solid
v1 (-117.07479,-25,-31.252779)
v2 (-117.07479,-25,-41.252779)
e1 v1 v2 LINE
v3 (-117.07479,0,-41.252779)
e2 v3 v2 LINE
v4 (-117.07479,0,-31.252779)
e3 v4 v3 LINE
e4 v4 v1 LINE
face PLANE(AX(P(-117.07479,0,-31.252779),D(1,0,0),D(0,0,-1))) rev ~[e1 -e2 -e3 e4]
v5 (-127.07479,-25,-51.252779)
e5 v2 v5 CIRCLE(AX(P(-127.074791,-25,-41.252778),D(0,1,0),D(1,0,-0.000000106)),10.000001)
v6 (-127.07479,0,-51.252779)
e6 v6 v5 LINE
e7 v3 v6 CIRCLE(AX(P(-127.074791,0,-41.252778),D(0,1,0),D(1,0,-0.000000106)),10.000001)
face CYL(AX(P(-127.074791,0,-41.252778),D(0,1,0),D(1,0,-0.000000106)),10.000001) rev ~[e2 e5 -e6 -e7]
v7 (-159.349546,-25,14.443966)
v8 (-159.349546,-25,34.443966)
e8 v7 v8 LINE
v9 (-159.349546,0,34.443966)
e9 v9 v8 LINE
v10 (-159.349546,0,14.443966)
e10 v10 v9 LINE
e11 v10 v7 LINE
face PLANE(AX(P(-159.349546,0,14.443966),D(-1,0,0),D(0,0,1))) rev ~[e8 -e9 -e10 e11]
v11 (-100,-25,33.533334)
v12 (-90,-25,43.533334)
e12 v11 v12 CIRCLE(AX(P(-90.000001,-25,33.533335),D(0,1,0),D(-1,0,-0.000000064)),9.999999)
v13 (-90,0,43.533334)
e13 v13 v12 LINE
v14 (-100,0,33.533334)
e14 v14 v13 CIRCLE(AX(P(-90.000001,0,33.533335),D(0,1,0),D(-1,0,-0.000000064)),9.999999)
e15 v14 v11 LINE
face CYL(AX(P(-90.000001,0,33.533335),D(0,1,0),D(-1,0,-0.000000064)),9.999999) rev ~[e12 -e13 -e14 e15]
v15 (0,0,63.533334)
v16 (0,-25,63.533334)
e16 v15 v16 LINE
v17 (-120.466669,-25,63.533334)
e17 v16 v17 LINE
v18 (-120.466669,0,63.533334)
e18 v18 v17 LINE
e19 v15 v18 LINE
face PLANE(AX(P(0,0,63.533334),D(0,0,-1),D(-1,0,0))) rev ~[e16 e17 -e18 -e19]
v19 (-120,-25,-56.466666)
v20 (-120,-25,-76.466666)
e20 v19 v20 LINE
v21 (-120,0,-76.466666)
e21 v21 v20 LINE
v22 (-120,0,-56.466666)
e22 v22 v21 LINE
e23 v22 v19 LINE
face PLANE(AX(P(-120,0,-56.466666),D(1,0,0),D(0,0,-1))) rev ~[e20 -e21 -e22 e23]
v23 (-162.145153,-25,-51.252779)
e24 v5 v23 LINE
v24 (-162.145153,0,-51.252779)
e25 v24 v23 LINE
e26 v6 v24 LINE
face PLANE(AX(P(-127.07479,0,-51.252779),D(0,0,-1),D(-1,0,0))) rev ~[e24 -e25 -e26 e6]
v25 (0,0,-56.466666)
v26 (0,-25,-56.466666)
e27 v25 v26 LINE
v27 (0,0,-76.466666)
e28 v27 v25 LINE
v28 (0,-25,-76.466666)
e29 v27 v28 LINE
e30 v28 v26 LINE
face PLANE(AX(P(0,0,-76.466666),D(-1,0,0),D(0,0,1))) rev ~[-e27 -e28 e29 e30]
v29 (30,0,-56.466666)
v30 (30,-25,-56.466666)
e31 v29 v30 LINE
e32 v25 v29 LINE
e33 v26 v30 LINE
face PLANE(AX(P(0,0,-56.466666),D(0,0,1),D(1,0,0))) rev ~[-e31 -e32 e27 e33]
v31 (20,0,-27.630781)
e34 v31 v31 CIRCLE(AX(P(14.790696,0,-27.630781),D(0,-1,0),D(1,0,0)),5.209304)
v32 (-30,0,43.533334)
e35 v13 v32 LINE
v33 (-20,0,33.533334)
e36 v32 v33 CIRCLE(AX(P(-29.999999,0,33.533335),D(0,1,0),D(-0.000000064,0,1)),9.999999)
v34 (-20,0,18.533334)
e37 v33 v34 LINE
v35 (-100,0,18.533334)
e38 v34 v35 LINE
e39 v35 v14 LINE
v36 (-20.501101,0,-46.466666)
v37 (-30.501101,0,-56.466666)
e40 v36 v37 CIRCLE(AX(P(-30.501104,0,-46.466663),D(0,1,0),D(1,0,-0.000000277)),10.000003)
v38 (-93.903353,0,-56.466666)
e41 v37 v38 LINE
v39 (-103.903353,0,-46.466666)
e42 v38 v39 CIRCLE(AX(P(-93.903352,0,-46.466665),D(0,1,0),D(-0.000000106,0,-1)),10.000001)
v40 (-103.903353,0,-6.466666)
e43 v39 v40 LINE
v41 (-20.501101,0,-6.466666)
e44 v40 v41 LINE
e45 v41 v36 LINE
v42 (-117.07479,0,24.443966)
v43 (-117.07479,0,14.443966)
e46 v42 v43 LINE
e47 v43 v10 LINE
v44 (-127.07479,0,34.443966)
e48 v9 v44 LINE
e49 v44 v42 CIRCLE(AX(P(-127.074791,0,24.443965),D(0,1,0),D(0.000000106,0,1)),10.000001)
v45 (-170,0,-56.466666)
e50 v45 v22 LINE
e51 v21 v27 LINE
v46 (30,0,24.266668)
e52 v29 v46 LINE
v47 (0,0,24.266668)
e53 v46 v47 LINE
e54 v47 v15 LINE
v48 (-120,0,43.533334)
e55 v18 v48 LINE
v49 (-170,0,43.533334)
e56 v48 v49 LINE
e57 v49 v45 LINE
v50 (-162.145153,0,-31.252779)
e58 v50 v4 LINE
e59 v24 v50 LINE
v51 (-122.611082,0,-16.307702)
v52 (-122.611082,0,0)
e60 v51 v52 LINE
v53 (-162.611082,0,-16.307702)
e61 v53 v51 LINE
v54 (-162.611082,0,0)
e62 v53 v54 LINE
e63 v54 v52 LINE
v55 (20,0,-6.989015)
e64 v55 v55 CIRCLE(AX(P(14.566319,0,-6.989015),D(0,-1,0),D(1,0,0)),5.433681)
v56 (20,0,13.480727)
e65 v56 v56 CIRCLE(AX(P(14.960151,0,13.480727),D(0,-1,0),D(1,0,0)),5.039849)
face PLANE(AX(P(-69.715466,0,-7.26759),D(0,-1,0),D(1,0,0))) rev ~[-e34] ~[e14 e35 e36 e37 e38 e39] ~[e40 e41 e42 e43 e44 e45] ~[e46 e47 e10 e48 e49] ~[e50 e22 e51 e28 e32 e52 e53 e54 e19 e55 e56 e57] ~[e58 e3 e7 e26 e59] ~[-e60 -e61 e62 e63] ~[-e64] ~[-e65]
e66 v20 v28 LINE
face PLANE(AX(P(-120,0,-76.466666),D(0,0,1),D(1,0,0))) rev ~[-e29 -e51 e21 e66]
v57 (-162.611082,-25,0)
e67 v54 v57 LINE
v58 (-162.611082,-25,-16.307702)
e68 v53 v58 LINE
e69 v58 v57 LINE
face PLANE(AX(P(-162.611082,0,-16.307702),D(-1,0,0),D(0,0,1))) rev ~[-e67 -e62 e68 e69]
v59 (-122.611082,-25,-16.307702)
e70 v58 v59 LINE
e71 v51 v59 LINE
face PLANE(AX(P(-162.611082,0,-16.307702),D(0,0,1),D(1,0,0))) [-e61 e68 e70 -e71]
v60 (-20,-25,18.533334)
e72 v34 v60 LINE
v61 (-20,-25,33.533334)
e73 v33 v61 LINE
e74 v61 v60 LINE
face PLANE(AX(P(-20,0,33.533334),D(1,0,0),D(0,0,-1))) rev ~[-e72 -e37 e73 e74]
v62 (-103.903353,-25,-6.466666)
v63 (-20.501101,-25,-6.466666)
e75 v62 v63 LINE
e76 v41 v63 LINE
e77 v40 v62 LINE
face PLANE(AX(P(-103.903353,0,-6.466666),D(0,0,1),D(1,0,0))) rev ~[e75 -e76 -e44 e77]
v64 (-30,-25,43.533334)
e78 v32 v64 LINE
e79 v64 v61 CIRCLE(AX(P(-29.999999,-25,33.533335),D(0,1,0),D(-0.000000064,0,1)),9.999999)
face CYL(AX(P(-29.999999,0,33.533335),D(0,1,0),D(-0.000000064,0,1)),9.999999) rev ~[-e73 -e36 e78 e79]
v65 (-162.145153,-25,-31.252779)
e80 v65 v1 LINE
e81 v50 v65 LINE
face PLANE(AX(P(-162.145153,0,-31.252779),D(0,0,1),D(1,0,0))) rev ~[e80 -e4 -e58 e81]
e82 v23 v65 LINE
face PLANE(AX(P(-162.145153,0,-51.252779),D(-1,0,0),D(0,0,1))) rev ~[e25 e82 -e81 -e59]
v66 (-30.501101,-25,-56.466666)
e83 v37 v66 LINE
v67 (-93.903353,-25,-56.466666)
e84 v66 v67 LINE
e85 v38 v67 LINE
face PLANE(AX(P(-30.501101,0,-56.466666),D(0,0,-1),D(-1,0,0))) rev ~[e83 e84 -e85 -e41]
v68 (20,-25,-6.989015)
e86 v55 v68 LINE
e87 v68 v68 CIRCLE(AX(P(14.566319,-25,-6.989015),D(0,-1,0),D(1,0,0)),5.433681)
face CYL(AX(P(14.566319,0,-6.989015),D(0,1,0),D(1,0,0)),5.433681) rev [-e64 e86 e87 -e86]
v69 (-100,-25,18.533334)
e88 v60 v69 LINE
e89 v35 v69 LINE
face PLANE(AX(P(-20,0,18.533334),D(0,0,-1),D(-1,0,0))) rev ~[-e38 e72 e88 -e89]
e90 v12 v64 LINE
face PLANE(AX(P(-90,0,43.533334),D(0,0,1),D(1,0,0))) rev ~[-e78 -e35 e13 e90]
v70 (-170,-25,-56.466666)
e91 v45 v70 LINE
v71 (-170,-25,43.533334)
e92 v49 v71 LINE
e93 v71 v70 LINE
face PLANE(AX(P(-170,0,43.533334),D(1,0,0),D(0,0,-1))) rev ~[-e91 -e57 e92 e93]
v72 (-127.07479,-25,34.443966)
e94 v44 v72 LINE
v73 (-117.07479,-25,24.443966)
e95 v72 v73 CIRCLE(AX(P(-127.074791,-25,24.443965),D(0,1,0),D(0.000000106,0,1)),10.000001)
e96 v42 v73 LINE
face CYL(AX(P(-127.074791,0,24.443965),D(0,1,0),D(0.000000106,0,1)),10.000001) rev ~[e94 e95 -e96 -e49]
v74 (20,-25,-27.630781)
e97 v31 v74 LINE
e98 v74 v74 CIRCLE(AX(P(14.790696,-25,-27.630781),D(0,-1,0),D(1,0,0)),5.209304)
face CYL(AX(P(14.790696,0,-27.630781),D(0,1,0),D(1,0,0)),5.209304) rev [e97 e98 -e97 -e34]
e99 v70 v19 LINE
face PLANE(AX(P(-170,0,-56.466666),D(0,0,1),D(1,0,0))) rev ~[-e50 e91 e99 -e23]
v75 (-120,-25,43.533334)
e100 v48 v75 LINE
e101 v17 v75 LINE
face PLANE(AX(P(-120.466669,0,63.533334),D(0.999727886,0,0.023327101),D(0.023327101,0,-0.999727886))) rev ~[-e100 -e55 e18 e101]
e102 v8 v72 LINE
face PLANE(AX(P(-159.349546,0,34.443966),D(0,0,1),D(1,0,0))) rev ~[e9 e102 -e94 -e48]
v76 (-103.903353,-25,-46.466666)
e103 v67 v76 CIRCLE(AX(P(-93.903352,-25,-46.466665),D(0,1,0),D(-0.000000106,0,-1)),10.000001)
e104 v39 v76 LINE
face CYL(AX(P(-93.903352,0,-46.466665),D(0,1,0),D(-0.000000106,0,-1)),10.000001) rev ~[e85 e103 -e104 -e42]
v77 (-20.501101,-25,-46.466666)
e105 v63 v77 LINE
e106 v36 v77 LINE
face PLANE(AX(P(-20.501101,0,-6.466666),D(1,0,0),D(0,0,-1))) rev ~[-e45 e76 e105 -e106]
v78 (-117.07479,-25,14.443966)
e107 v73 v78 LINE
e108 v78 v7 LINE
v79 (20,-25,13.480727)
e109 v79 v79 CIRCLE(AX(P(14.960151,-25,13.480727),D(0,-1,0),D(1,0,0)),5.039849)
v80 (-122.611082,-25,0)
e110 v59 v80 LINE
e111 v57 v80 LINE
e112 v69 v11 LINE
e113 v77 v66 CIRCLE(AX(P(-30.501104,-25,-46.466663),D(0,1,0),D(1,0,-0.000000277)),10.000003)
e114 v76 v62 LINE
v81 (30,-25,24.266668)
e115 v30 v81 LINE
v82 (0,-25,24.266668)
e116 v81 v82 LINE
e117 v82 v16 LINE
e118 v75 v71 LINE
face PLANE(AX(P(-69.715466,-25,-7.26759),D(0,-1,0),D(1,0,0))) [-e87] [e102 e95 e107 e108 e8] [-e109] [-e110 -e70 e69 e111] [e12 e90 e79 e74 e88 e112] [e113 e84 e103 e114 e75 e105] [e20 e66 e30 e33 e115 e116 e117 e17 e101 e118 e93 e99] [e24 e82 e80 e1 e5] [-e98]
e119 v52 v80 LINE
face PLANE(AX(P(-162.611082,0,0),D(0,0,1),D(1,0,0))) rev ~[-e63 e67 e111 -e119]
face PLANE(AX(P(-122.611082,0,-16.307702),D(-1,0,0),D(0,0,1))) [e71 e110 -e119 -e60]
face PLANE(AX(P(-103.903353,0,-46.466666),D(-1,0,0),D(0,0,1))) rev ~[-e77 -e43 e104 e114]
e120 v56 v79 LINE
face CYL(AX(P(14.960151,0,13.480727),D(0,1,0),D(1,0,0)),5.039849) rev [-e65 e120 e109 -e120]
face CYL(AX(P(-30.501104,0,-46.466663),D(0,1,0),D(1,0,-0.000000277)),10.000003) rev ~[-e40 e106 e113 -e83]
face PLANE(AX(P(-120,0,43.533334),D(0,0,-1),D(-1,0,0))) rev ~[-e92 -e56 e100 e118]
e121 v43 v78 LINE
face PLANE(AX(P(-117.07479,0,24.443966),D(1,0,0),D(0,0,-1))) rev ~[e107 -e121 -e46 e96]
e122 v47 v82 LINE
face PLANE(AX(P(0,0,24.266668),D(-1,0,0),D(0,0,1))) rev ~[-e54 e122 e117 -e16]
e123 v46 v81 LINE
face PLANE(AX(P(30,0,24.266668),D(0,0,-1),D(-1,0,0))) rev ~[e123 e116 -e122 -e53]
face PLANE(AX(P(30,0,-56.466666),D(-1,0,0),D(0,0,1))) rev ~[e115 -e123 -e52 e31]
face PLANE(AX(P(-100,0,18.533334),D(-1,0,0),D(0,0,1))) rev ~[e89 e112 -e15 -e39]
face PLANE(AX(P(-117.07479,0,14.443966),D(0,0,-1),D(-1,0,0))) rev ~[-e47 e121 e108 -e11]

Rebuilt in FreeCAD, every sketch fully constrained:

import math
import FreeCAD as App
import Part
import Sketcher

V = App.Vector


def add_polygon(sketch, points):
    """Adds a closed chain of lines whose ends are joined by coincident constraints."""
    first, n = sketch.GeometryCount, len(points)
    for a, b in zip(points, points[1:] + points[:1]):
        sketch.addGeometry(Part.LineSegment(App.Vector(*a, 0), App.Vector(*b, 0)), False)
    for i in range(n):
        sketch.addConstraint(Sketcher.Constraint("Coincident", first + i, 2, first + (i + 1) % n, 1))

doc = App.newDocument("Part")
body = doc.addObject("PartDesign::Body", "Body")

# Sketch on XZ plane
sketch1 = doc.addObject("Sketcher::SketchObject", "Sketch")
body.addObject(sketch1)
sketch1.AttachmentSupport = (doc.XZ_Plane, [""])
sketch1.MapMode = "FlatFace"
add_polygon(sketch1, [(0, 64), (-120, 64), (-120, 44), (-170, 44), (-170, -56), (-120, -56), (-120, -76), (0, -76), (0, -56), (30, -56), (30, 24), (0, 24)])  # lines 0-11
sketch1.addGeometry(Part.LineSegment(V(-127, -51, 0), V(-162, -51, 0)), False)  # 12
sketch1.addGeometry(Part.LineSegment(V(-162, -51, 0), V(-162, -31, 0)), False)  # 13
sketch1.addGeometry(Part.LineSegment(V(-162, -31, 0), V(-117, -31, 0)), False)  # 14
sketch1.addGeometry(Part.LineSegment(V(-117, -31, 0), V(-117, -41, 0)), False)  # 15
sketch1.addGeometry(Part.ArcOfCircle(Part.Circle(V(-127, -41, 0), V(0, 0, 1), 10), math.radians(-90), math.radians(0)), False)  # 16
add_polygon(sketch1, [(-123, -16), (-163, -16), (-163, 0), (-123, 0)])  # lines 17-20
sketch1.addGeometry(Part.ArcOfCircle(Part.Circle(V(-94, -46, 0), V(0, 0, 1), 10), math.radians(-180), math.radians(-90)), False)  # 21
sketch1.addGeometry(Part.LineSegment(V(-104, -46, 0), V(-104, -6, 0)), False)  # 22
sketch1.addGeometry(Part.LineSegment(V(-104, -6, 0), V(-21, -6, 0)), False)  # 23
sketch1.addGeometry(Part.LineSegment(V(-21, -6, 0), V(-21, -46, 0)), False)  # 24
sketch1.addGeometry(Part.ArcOfCircle(Part.Circle(V(-31, -46, 0), V(0, 0, 1), 10), math.radians(-90), math.radians(0)), False)  # 25
sketch1.addGeometry(Part.LineSegment(V(-31, -56, 0), V(-94, -56, 0)), False)  # 26
sketch1.addGeometry(Part.Circle(V(15, -28, 0), V(0, 0, 1), 5), False)  # 27
sketch1.addGeometry(Part.Circle(V(15, -7, 0), V(0, 0, 1), 5), False)  # 28
sketch1.addGeometry(Part.LineSegment(V(-117, 14, 0), V(-159, 14, 0)), False)  # 29
sketch1.addGeometry(Part.LineSegment(V(-159, 14, 0), V(-159, 34, 0)), False)  # 30
sketch1.addGeometry(Part.LineSegment(V(-159, 34, 0), V(-127, 34, 0)), False)  # 31
sketch1.addGeometry(Part.ArcOfCircle(Part.Circle(V(-127, 24, 0), V(0, 0, 1), 10), math.radians(0), math.radians(90)), False)  # 32
sketch1.addGeometry(Part.LineSegment(V(-117, 24, 0), V(-117, 14, 0)), False)  # 33
sketch1.addGeometry(Part.Circle(V(15, 13, 0), V(0, 0, 1), 5), False)  # 34
sketch1.addGeometry(Part.LineSegment(V(-20, 34, 0), V(-20, 19, 0)), False)  # 35
sketch1.addGeometry(Part.LineSegment(V(-20, 19, 0), V(-100, 19, 0)), False)  # 36
sketch1.addGeometry(Part.LineSegment(V(-100, 19, 0), V(-100, 34, 0)), False)  # 37
sketch1.addGeometry(Part.ArcOfCircle(Part.Circle(V(-90, 34, 0), V(0, 0, 1), 10), math.radians(90), math.radians(180)), False)  # 38
sketch1.addGeometry(Part.LineSegment(V(-90, 44, 0), V(-30, 44, 0)), False)  # 39
sketch1.addGeometry(Part.ArcOfCircle(Part.Circle(V(-30, 34, 0), V(0, 0, 1), 10), math.radians(0), math.radians(90)), False)  # 40
sketch1.addConstraint(Sketcher.Constraint("Coincident", 12, 2, 13, 1))
sketch1.addConstraint(Sketcher.Constraint("Coincident", 13, 2, 14, 1))
sketch1.addConstraint(Sketcher.Constraint("Coincident", 14, 2, 15, 1))
sketch1.addConstraint(Sketcher.Constraint("Tangent", 15, 2, 16, 2))
sketch1.addConstraint(Sketcher.Constraint("Tangent", 16, 1, 12, 1))
sketch1.addConstraint(Sketcher.Constraint("Tangent", 21, 1, 22, 1))
sketch1.addConstraint(Sketcher.Constraint("Coincident", 22, 2, 23, 1))
sketch1.addConstraint(Sketcher.Constraint("Coincident", 23, 2, 24, 1))
sketch1.addConstraint(Sketcher.Constraint("Tangent", 24, 2, 25, 2))
sketch1.addConstraint(Sketcher.Constraint("Tangent", 25, 1, 26, 1))
sketch1.addConstraint(Sketcher.Constraint("Tangent", 26, 2, 21, 2))
sketch1.addConstraint(Sketcher.Constraint("Coincident", 29, 2, 30, 1))
sketch1.addConstraint(Sketcher.Constraint("Coincident", 30, 2, 31, 1))
sketch1.addConstraint(Sketcher.Constraint("Tangent", 31, 2, 32, 2))
sketch1.addConstraint(Sketcher.Constraint("Tangent", 32, 1, 33, 1))
sketch1.addConstraint(Sketcher.Constraint("Coincident", 33, 2, 29, 1))
sketch1.addConstraint(Sketcher.Constraint("Coincident", 35, 2, 36, 1))
sketch1.addConstraint(Sketcher.Constraint("Coincident", 36, 2, 37, 1))
sketch1.addConstraint(Sketcher.Constraint("Tangent", 37, 2, 38, 2))
sketch1.addConstraint(Sketcher.Constraint("Tangent", 38, 1, 39, 1))
sketch1.addConstraint(Sketcher.Constraint("Tangent", 39, 2, 40, 2))
sketch1.addConstraint(Sketcher.Constraint("Tangent", 40, 1, 35, 1))
sketch1.addConstraint(Sketcher.Constraint("Horizontal", 0))
sketch1.addConstraint(Sketcher.Constraint("Horizontal", 2))
sketch1.addConstraint(Sketcher.Constraint("Vertical", 3))
sketch1.addConstraint(Sketcher.Constraint("Horizontal", 4))
sketch1.addConstraint(Sketcher.Constraint("Vertical", 5))
sketch1.addConstraint(Sketcher.Constraint("Horizontal", 6))
sketch1.addConstraint(Sketcher.Constraint("Vertical", 7))
sketch1.addConstraint(Sketcher.Constraint("Horizontal", 8))
sketch1.addConstraint(Sketcher.Constraint("Vertical", 9))
sketch1.addConstraint(Sketcher.Constraint("Horizontal", 10))
sketch1.addConstraint(Sketcher.Constraint("Vertical", 11))
sketch1.addConstraint(Sketcher.Constraint("Horizontal", 12))
sketch1.addConstraint(Sketcher.Constraint("Vertical", 13))
sketch1.addConstraint(Sketcher.Constraint("Horizontal", 14))
sketch1.addConstraint(Sketcher.Constraint("Vertical", 15))
sketch1.addConstraint(Sketcher.Constraint("Horizontal", 17))
sketch1.addConstraint(Sketcher.Constraint("Vertical", 18))
sketch1.addConstraint(Sketcher.Constraint("Horizontal", 19))
sketch1.addConstraint(Sketcher.Constraint("Vertical", 20))
sketch1.addConstraint(Sketcher.Constraint("Vertical", 22))
sketch1.addConstraint(Sketcher.Constraint("Horizontal", 23))
sketch1.addConstraint(Sketcher.Constraint("Vertical", 24))
sketch1.addConstraint(Sketcher.Constraint("Horizontal", 26))
sketch1.addConstraint(Sketcher.Constraint("Horizontal", 29))
sketch1.addConstraint(Sketcher.Constraint("Vertical", 30))
sketch1.addConstraint(Sketcher.Constraint("Horizontal", 31))
sketch1.addConstraint(Sketcher.Constraint("Vertical", 33))
sketch1.addConstraint(Sketcher.Constraint("Vertical", 35))
sketch1.addConstraint(Sketcher.Constraint("Horizontal", 36))
sketch1.addConstraint(Sketcher.Constraint("Vertical", 37))
sketch1.addConstraint(Sketcher.Constraint("Horizontal", 39))
sketch1.addConstraint(Sketcher.Constraint("Equal", 16, 21))
sketch1.addConstraint(Sketcher.Constraint("Equal", 21, 25))
sketch1.addConstraint(Sketcher.Constraint("Equal", 25, 32))
sketch1.addConstraint(Sketcher.Constraint("Equal", 32, 38))
sketch1.addConstraint(Sketcher.Constraint("Equal", 38, 40))
sketch1.addConstraint(Sketcher.Constraint("PointOnObject", 6, 2, -2))
sketch1.addConstraint(Sketcher.Constraint("PointOnObject", 10, 2, -2))
sketch1.addConstraint(Sketcher.Constraint("PointOnObject", 18, 2, -1))
sketch1.addConstraint(Sketcher.Constraint("Horizontal", 4, 2, 7, 2))
sketch1.addConstraint(Sketcher.Constraint("Horizontal", 8, 2, 25, 1))
sketch1.addConstraint(Sketcher.Constraint("Horizontal", 2, 2, 38, 1))
sketch1.addConstraint(Sketcher.Constraint("Vertical", 16, 3, 32, 3))
sketch1.addConstraint(Sketcher.Constraint("Vertical", 1, 2, 4, 2))
sketch1.addConstraint(Sketcher.Constraint("Equal", 7, 13))
sketch1.addConstraint(Sketcher.Constraint("Equal", 19, 22))
sketch1.addConstraint(Sketcher.Constraint("Equal", 13, 30))
sketch1.addConstraint(Sketcher.Constraint("Radius", 16, 10.000001))
sketch1.addConstraint(Sketcher.Constraint("DistanceX", 2, 2, 2, 1, 50.0))
sketch1.addConstraint(Sketcher.Constraint("DistanceX", 6, 1, 6, 2, 120.0))
sketch1.addConstraint(Sketcher.Constraint("DistanceX", 8, 1, 8, 2, 30.0))
sketch1.addConstraint(Sketcher.Constraint("DistanceX", 17, 2, 17, 1, 40.0))
sketch1.addConstraint(Sketcher.Constraint("DistanceX", 36, 2, 36, 1, 80.0))
sketch1.addConstraint(Sketcher.Constraint("DistanceY", 3, 2, 3, 1, 100.0))
sketch1.addConstraint(Sketcher.Constraint("DistanceY", 5, 2, 5, 1, 20.0))
sketch1.addConstraint(Sketcher.Constraint("DistanceY", 35, 2, 35, 1, 15.0))
sketch1.addConstraint(Sketcher.Constraint("DistanceX", 38, 3, -1, 1, 90.000001))
sketch1.addConstraint(Sketcher.Constraint("DistanceY", 38, 3, 0, 2, 29.999999))
sketch1.addConstraint(Sketcher.Constraint("Diameter", 27, 10.418608))
sketch1.addConstraint(Sketcher.Constraint("Diameter", 28, 10.867362))
sketch1.addConstraint(Sketcher.Constraint("Diameter", 34, 10.079698))
sketch1.addConstraint(Sketcher.Constraint("DistanceY", 18, 1, 18, 2, 16.307702))
sketch1.addConstraint(Sketcher.Constraint("DistanceX", 0, 2, 0, 1, 120.466669))
sketch1.addConstraint(Sketcher.Constraint("DistanceX", 26, 2, 26, 1, 63.402252))
sketch1.addConstraint(Sketcher.Constraint("DistanceX", 23, 2, -1, 1, 20.501101))
sketch1.addConstraint(Sketcher.Constraint("DistanceX", 25, 3, 27, 3, 45.2918))
sketch1.addConstraint(Sketcher.Constraint("DistanceX", 12, 2, 21, 3, 68.241801))
sketch1.addConstraint(Sketcher.Constraint("DistanceX", 12, 2, 12, 1, 35.070363))
sketch1.addConstraint(Sketcher.Constraint("DistanceX", 29, 2, 29, 1, 42.274756))
sketch1.addConstraint(Sketcher.Constraint("DistanceY", 9, 1, 9, 2, 80.733334))
sketch1.addConstraint(Sketcher.Constraint("DistanceY", 27, 3, -1, 1, 27.630781))
sketch1.addConstraint(Sketcher.Constraint("DistanceX", -1, 1, 28, 3, 14.566319))
sketch1.addConstraint(Sketcher.Constraint("DistanceX", -1, 1, 34, 3, 14.960151))
sketch1.addConstraint(Sketcher.Constraint("DistanceY", 12, 2, -1, 1, 51.252779))
sketch1.addConstraint(Sketcher.Constraint("DistanceX", 19, 2, -1, 1, 122.611082))
sketch1.addConstraint(Sketcher.Constraint("DistanceY", 25, 3, 28, 3, 39.477648))
sketch1.addConstraint(Sketcher.Constraint("DistanceY", 21, 3, 32, 3, 70.91063))
sketch1.addConstraint(Sketcher.Constraint("DistanceY", 28, 3, 34, 3, 20.469742))
sketch1.addConstraint(Sketcher.Constraint("DistanceY", 16, 3, 0, 2, 104.786112))
pad1 = doc.addObject("PartDesign::Pad", "Pad")
body.addObject(pad1)
pad1.Profile = sketch1
pad1.Length = 25

doc.recompute()
